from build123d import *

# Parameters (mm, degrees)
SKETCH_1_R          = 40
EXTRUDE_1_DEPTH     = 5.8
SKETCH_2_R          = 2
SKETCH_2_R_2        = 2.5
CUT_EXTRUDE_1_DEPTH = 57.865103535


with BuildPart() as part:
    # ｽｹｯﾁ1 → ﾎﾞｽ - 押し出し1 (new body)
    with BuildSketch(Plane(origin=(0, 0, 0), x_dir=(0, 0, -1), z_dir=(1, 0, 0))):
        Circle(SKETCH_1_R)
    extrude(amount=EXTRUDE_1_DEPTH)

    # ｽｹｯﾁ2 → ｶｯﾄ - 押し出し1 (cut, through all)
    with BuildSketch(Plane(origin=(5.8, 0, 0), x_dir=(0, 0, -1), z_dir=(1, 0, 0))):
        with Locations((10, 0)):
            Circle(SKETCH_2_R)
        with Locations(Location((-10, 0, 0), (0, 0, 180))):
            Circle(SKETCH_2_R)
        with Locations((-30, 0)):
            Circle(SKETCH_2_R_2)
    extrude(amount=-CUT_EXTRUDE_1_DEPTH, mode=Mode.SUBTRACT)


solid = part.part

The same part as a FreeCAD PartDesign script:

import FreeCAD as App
import Part
import Sketcher
from FreeCAD import Vector
Q = App.Units.Quantity

doc = App.newDocument("Part")
params = doc.addObject("Spreadsheet::Sheet", "Params")
for row, (alias, value) in enumerate([
    ("sketch1_diameter", "80 mm"),
    ("pad1_length", "5.8 mm"),
    ("sketch2_diameter", "4 mm"),
    ("sketch2_diameter2", "5 mm"),
], start=1):
    params.set(f"A{row}", alias)
    params.set(f"B{row}", "=" + value)
    params.setAlias(f"B{row}", alias)

body = doc.addObject("PartDesign::Body", "Body")

# Sketch on YZ plane
sketch1 = body.newObject("Sketcher::SketchObject", "Sketch")
sketch1.AttachmentSupport = (doc.getObject("YZ_Plane"), [""])
sketch1.MapMode = "FlatFace"
sketch1.addGeometry(Part.Circle(Vector(0, 0, 0), Vector(0, 0, 1), 40), False)
sketch1.addConstraint(Sketcher.Constraint("Coincident", 0, 3, -1, 1))
sketch1.addConstraint(Sketcher.Constraint("Diameter", 0, Q("80 mm")))
sketch1.setExpression("Constraints[1]", "Params.sketch1_diameter")
pad1 = body.newObject("PartDesign::Pad", "Pad")
pad1.Profile = sketch1
pad1.setExpression("Length", "Params.pad1_length")

# Sketch on YZ plane
sketch2 = body.newObject("Sketcher::SketchObject", "Sketch001")
sketch2.AttachmentSupport = (doc.getObject("YZ_Plane"), [""])
sketch2.MapMode = "FlatFace"
sketch2.AttachmentOffset = App.Placement(Vector(0, 0, 5.8), App.Rotation())
sketch2.addGeometry(Part.Circle(Vector(0, -10, 0), Vector(0, 0, 1), 2), False)
sketch2.addGeometry(Part.Circle(Vector(0, 10, 0), Vector(0, 0, 1), 2), False)
sketch2.addGeometry(Part.Circle(Vector(0, 30, 0), Vector(0, 0, 1), 2.5), False)
sketch2.addConstraint(Sketcher.Constraint("Equal", 0, 1))
sketch2.addConstraint(Sketcher.Constraint("Symmetric", 0, 3, 1, 3, -1, 1))
sketch2.addConstraint(Sketcher.Constraint("PointOnObject", 0, 3, -2))
sketch2.addConstraint(Sketcher.Constraint("PointOnObject", 2, 3, -2))
sketch2.addConstraint(Sketcher.Constraint("Diameter", 0, Q("4 mm")))
sketch2.addConstraint(Sketcher.Constraint("Diameter", 2, Q("5 mm")))
sketch2.addConstraint(Sketcher.Constraint("DistanceY", 0, 3, -1, 1, Q("10 mm")))
sketch2.addConstraint(Sketcher.Constraint("DistanceY", -1, 1, 2, 3, Q("30 mm")))
sketch2.setExpression("Constraints[4]", "Params.sketch2_diameter")
sketch2.setExpression("Constraints[5]", "Params.sketch2_diameter2")
pocket1 = body.newObject("PartDesign::Pocket", "Pocket")
pocket1.Profile = sketch2
pocket1.Type = "ThroughAll"

doc.recompute()
